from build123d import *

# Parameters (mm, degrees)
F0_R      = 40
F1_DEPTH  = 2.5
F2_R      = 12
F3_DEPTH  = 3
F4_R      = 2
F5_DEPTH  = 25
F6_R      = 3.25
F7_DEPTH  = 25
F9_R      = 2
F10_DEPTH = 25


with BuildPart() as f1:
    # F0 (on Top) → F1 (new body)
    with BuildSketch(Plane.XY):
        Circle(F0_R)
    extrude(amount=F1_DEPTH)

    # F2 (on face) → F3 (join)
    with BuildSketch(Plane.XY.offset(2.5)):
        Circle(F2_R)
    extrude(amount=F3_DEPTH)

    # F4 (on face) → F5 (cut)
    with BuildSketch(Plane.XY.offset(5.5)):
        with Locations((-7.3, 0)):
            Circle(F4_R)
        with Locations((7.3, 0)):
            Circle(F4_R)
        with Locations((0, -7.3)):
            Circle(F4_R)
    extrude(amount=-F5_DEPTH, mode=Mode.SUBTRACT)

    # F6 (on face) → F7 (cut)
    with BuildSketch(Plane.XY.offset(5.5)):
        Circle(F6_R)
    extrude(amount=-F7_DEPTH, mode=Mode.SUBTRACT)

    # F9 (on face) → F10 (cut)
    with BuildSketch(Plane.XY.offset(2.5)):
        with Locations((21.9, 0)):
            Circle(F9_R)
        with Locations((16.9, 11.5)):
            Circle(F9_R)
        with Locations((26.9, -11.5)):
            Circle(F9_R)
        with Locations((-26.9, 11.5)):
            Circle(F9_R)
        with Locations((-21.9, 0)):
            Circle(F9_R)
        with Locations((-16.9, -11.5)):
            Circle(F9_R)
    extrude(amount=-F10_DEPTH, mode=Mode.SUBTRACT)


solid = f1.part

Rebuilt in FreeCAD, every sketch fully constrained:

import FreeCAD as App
import Part
import Sketcher

V = App.Vector
Q = App.Units.Quantity

doc = App.newDocument("Part")
params = doc.addObject("Spreadsheet::Sheet", "Params")
for row, (alias, value) in enumerate([
    ("sketch1_diameter", "80 mm"),
    ("pad1_length", "2.5 mm"),
    ("sketch2_diameter", "24 mm"),
    ("pad2_length", "3 mm"),
    ("sketch3_diameter", "4 mm"),
    ("pocket1_length", "25 mm"),
    ("sketch4_diameter", "6.5 mm"),
    ("pocket2_length", "25 mm"),
    ("sketch5_diameter", "4 mm"),
    ("pocket3_length", "25 mm"),
], start=1):
    params.set(f"A{row}", alias)
    params.set(f"B{row}", "=" + value)
    params.setAlias(f"B{row}", alias)

body = doc.addObject("PartDesign::Body", "Body")

# Sketch on XY plane
sketch1 = doc.addObject("Sketcher::SketchObject", "Sketch")
body.addObject(sketch1)
sketch1.AttachmentSupport = (doc.XY_Plane, [""])
sketch1.MapMode = "FlatFace"
sketch1.addGeometry(Part.Circle(V(0, 0, 0), V(0, 0, 1), 40), False)
sketch1.addConstraint(Sketcher.Constraint("Coincident", 0, 3, -1, 1))
sketch1.addConstraint(Sketcher.Constraint("Diameter", 0, Q("80 mm")))
sketch1.setExpression("Constraints[1]", "Params.sketch1_diameter")
pad1 = doc.addObject("PartDesign::Pad", "Pad")
body.addObject(pad1)
pad1.Profile = sketch1
pad1.setExpression("Length", "Params.pad1_length")

# Sketch on XY plane
sketch2 = doc.addObject("Sketcher::SketchObject", "Sketch001")
body.addObject(sketch2)
sketch2.AttachmentSupport = (doc.XY_Plane, [""])
sketch2.MapMode = "FlatFace"
sketch2.AttachmentOffset = App.Placement(V(0, 0, 2.5), App.Rotation())
sketch2.addGeometry(Part.Circle(V(0, 0, 0), V(0, 0, 1), 12), False)
sketch2.addConstraint(Sketcher.Constraint("Coincident", 0, 3, -1, 1))
sketch2.addConstraint(Sketcher.Constraint("Diameter", 0, Q("24 mm")))
sketch2.setExpression("Constraints[1]", "Params.sketch2_diameter")
pad2 = doc.addObject("PartDesign::Pad", "Pad001")
body.addObject(pad2)
pad2.Profile = sketch2
pad2.setExpression("Length", "Params.pad2_length")

# Sketch on XY plane
sketch3 = doc.addObject("Sketcher::SketchObject", "Sketch002")
body.addObject(sketch3)
sketch3.AttachmentSupport = (doc.XY_Plane, [""])
sketch3.MapMode = "FlatFace"
sketch3.AttachmentOffset = App.Placement(V(0, 0, 5.5), App.Rotation())
sketch3.addGeometry(Part.Circle(V(-7.3, 0, 0), V(0, 0, 1), 2), False)
sketch3.addGeometry(Part.Circle(V(7.3, 0, 0), V(0, 0, 1), 2), False)
sketch3.addGeometry(Part.Circle(V(0, -7.3, 0), V(0, 0, 1), 2), False)
sketch3.addConstraint(Sketcher.Constraint("Equal", 0, 1))
sketch3.addConstraint(Sketcher.Constraint("Equal", 1, 2))
sketch3.addConstraint(Sketcher.Constraint("Symmetric", 0, 3, 1, 3, -1, 1))
sketch3.addConstraint(Sketcher.Constraint("PointOnObject", 0, 3, -1))
sketch3.addConstraint(Sketcher.Constraint("PointOnObject", 2, 3, -2))
sketch3.addConstraint(Sketcher.Constraint("Diameter", 0, Q("4 mm")))
sketch3.addConstraint(Sketcher.Constraint("DistanceX", 0, 3, -1, 1, Q("7.3 mm")))
sketch3.addConstraint(Sketcher.Constraint("DistanceY", 2, 3, -1, 1, Q("7.3 mm")))
sketch3.setExpression("Constraints[5]", "Params.sketch3_diameter")
pocket1 = doc.addObject("PartDesign::Pocket", "Pocket")
body.addObject(pocket1)
pocket1.Profile = sketch3
pocket1.setExpression("Length", "Params.pocket1_length")

# Sketch on XY plane
sketch4 = doc.addObject("Sketcher::SketchObject", "Sketch003")
body.addObject(sketch4)
sketch4.AttachmentSupport = (doc.XY_Plane, [""])
sketch4.MapMode = "FlatFace"
sketch4.AttachmentOffset = App.Placement(V(0, 0, 5.5), App.Rotation())
sketch4.addGeometry(Part.Circle(V(0, 0, 0), V(0, 0, 1), 3.2), False)
sketch4.addConstraint(Sketcher.Constraint("Coincident", 0, 3, -1, 1))
sketch4.addConstraint(Sketcher.Constraint("Diameter", 0, Q("6.5 mm")))
sketch4.setExpression("Constraints[1]", "Params.sketch4_diameter")
pocket2 = doc.addObject("PartDesign::Pocket", "Pocket001")
body.addObject(pocket2)
pocket2.Profile = sketch4
pocket2.setExpression("Length", "Params.pocket2_length")

# Sketch on XY plane
sketch5 = doc.addObject("Sketcher::SketchObject", "Sketch004")
body.addObject(sketch5)
sketch5.AttachmentSupport = (doc.XY_Plane, [""])
sketch5.MapMode = "FlatFace"
sketch5.AttachmentOffset = App.Placement(V(0, 0, 2.5), App.Rotation())
sketch5.addGeometry(Part.Circle(V(21.9, 0, 0), V(0, 0, 1), 2), False)
sketch5.addGeometry(Part.Circle(V(16.9, 11.5, 0), V(0, 0, 1), 2), False)
sketch5.addGeometry(Part.Circle(V(26.9, -11.5, 0), V(0, 0, 1), 2), False)
sketch5.addGeometry(Part.Circle(V(-26.9, 11.5, 0), V(0, 0, 1), 2), False)
sketch5.addGeometry(Part.Circle(V(-21.9, 0, 0), V(0, 0, 1), 2), False)
sketch5.addGeometry(Part.Circle(V(-16.9, -11.5, 0), V(0, 0, 1), 2), False)
sketch5.addConstraint(Sketcher.Constraint("Equal", 0, 1))
sketch5.addConstraint(Sketcher.Constraint("Equal", 1, 2))
sketch5.addConstraint(Sketcher.Constraint("Equal", 2, 3))
sketch5.addConstraint(Sketcher.Constraint("Equal", 3, 4))
sketch5.addConstraint(Sketcher.Constraint("Equal", 4, 5))
sketch5.addConstraint(Sketcher.Constraint("Symmetric", 2, 3, 3, 3, -1, 1))
sketch5.addConstraint(Sketcher.Constraint("Symmetric", 0, 3, 4, 3, -1, 1))
sketch5.addConstraint(Sketcher.Constraint("Symmetric", 1, 3, 5, 3, -1, 1))
sketch5.addConstraint(Sketcher.Constraint("PointOnObject", 0, 3, -1))
sketch5.addConstraint(Sketcher.Constraint("Horizontal", 1, 3, 3, 3))
sketch5.addConstraint(Sketcher.Constraint("Diameter", 0, Q("4 mm")))
sketch5.addConstraint(Sketcher.Constraint("DistanceX", 1, 3, 0, 3, Q("5 mm")))
sketch5.addConstraint(Sketcher.Constraint("DistanceX", 0, 3, 2, 3, Q("5 mm")))
sketch5.addConstraint(Sketcher.Constraint("DistanceY", 2, 3, 1, 3, Q("23 mm")))
sketch5.addConstraint(Sketcher.Constraint("DistanceX", -1, 1, 0, 3, Q("21.9 mm")))
sketch5.setExpression("Constraints[10]", "Params.sketch5_diameter")
pocket3 = doc.addObject("PartDesign::Pocket", "Pocket002")
body.addObject(pocket3)
pocket3.Profile = sketch5
pocket3.setExpression("Length", "Params.pocket3_length")

doc.recompute()
